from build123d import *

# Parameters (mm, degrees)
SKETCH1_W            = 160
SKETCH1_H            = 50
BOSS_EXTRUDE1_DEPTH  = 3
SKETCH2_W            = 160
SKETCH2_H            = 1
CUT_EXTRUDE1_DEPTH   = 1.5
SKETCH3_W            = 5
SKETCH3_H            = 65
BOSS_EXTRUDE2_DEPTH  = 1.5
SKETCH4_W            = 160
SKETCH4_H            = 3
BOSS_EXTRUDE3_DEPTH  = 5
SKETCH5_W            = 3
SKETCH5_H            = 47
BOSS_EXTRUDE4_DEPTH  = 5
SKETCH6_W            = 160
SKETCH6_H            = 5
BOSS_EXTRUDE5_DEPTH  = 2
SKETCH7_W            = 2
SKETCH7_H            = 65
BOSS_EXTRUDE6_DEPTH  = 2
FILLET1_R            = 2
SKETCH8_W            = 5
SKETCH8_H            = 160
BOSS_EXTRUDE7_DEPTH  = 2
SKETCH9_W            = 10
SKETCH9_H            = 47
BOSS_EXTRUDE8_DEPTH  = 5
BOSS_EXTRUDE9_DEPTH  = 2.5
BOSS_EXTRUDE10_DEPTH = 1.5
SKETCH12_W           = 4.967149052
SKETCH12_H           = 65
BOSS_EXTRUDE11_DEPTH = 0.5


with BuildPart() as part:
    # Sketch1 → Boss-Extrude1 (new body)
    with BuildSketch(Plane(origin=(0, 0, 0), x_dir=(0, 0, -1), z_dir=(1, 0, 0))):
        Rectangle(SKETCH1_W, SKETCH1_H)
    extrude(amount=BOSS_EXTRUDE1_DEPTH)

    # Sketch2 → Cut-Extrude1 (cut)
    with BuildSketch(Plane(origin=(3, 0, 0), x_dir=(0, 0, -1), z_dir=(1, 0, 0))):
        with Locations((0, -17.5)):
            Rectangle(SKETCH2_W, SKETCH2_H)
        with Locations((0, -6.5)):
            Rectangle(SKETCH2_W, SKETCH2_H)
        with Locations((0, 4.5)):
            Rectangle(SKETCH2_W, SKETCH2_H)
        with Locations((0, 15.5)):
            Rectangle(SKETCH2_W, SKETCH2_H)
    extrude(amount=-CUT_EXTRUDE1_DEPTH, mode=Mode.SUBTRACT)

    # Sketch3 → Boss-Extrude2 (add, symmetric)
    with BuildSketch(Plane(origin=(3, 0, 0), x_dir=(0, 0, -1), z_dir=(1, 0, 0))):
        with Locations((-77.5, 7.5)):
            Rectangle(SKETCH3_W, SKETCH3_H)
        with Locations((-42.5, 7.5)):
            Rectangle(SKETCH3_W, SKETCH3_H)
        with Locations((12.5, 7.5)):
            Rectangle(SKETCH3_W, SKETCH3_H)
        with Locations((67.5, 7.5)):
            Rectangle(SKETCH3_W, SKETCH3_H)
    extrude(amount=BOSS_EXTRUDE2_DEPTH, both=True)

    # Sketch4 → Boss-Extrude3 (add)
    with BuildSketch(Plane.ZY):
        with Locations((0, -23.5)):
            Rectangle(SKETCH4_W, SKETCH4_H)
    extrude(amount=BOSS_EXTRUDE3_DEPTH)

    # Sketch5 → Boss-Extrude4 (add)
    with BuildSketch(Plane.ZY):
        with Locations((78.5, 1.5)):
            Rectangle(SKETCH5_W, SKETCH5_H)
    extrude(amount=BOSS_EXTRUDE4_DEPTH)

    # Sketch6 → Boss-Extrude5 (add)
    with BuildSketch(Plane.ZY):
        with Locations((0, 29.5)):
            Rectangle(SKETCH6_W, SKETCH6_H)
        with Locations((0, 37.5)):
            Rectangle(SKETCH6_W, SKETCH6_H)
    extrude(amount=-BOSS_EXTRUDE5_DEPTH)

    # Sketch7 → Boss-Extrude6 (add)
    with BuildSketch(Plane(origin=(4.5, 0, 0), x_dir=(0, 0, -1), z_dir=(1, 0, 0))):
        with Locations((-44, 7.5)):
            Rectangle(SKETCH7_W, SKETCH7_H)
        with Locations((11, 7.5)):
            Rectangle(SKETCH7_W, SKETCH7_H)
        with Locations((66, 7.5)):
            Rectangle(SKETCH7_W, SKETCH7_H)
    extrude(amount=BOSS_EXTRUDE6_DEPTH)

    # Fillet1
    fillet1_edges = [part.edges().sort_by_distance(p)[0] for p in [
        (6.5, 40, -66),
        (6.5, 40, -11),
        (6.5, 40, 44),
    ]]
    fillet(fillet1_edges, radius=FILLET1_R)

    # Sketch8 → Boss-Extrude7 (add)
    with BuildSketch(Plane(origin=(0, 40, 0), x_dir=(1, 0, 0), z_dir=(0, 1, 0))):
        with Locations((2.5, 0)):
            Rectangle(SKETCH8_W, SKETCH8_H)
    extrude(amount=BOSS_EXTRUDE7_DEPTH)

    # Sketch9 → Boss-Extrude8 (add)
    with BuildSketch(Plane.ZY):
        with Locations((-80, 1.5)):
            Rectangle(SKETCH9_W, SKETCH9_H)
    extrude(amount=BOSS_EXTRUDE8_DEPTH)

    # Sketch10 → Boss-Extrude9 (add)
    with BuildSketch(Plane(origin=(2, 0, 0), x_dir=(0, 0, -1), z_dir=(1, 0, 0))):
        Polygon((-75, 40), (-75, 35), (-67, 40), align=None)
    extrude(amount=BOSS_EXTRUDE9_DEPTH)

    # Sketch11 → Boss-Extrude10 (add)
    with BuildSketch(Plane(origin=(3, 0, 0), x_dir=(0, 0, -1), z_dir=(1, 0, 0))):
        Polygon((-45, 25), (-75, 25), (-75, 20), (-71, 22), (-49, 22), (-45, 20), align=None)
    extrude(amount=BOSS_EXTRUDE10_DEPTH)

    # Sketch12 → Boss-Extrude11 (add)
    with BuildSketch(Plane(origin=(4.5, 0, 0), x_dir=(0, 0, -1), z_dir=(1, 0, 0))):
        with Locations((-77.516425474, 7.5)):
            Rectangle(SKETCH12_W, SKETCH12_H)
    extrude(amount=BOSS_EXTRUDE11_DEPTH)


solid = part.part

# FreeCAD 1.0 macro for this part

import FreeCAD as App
import Part
import Sketcher
Q = App.Units.Quantity


def edges_at(feature, points):
    """Names of the edges that pass closest to the given points."""
    edges = feature.Shape.Edges
    near = lambda p: min(range(len(edges)), key=lambda i: edges[i].distToShape(Part.Vertex(*p))[0])
    return sorted({f"Edge{near(p) + 1}" for p in points})


def add_polygon(sketch, points):
    """Adds a closed chain of lines whose ends are joined by coincident constraints."""
    first, n = sketch.GeometryCount, len(points)
    for a, b in zip(points, points[1:] + points[:1]):
        sketch.addGeometry(Part.LineSegment(App.Vector(*a, 0), App.Vector(*b, 0)), False)
    for i in range(n):
        sketch.addConstraint(Sketcher.Constraint("Coincident", first + i, 2, first + (i + 1) % n, 1))

doc = App.newDocument("Part")
body = doc.addObject("PartDesign::Body", "Body")

# Sketch on YZ plane
sketch1 = body.newObject("Sketcher::SketchObject", "Sketch")
sketch1.AttachmentSupport = (doc.getObject("YZ_Plane"), [""])
sketch1.MapMode = "FlatFace"
add_polygon(sketch1, [(25, 80), (-25, 80), (-25, -80), (25, -80)])  # lines 0-3
sketch1.addConstraint([
    Sketcher.Constraint("Horizontal", 0),
    Sketcher.Constraint("Vertical", 1),
    Sketcher.Constraint("Horizontal", 2),
    Sketcher.Constraint("Vertical", 3),
    Sketcher.Constraint("Symmetric", 0, 2, 2, 2, -1, 1),
    Sketcher.Constraint("DistanceX", 0, 2, 0, 1, Q("50 mm")),
    Sketcher.Constraint("DistanceY", 1, 2, 1, 1, Q("160 mm")),
])
pad1 = body.newObject("PartDesign::Pad", "Pad")
pad1.Profile = sketch1
pad1.Length = 3

# Sketch on YZ plane
sketch2 = body.newObject("Sketcher::SketchObject", "Sketch001")
sketch2.AttachmentSupport = (doc.getObject("YZ_Plane"), [""])
sketch2.MapMode = "FlatFace"
sketch2.AttachmentOffset = App.Placement(App.Vector(0, 0, 3), App.Rotation())
add_polygon(sketch2, [(-17, 80), (-18, 80), (-18, -80), (-17, -80)])  # lines 0-3
add_polygon(sketch2, [(-6, 80), (-7, 80), (-7, -80), (-6, -80)])  # lines 4-7
add_polygon(sketch2, [(5, 80), (4, 80), (4, -80), (5, -80)])  # lines 8-11
add_polygon(sketch2, [(16, 80), (15, 80), (15, -80), (16, -80)])  # lines 12-15
sketch2.addConstraint([
    Sketcher.Constraint("Horizontal", 0),
    Sketcher.Constraint("Vertical", 1),
    Sketcher.Constraint("Horizontal", 2),
    Sketcher.Constraint("Vertical", 3),
    Sketcher.Constraint("Horizontal", 4),
    Sketcher.Constraint("Vertical", 5),
    Sketcher.Constraint("Horizontal", 6),
    Sketcher.Constraint("Vertical", 7),
    Sketcher.Constraint("Horizontal", 8),
    Sketcher.Constraint("Vertical", 9),
    Sketcher.Constraint("Horizontal", 10),
    Sketcher.Constraint("Vertical", 11),
    Sketcher.Constraint("Horizontal", 12),
    Sketcher.Constraint("Vertical", 13),
    Sketcher.Constraint("Horizontal", 14),
    Sketcher.Constraint("Vertical", 15),
    Sketcher.Constraint("Horizontal", 3, 2, 4, 2),
    Sketcher.Constraint("Horizontal", 2, 2, 5, 2),
    Sketcher.Constraint("Horizontal", 7, 2, 8, 2),
    Sketcher.Constraint("Horizontal", 6, 2, 9, 2),
    Sketcher.Constraint("Horizontal", 11, 2, 12, 2),
    Sketcher.Constraint("Horizontal", 10, 2, 13, 2),
    Sketcher.Constraint("Equal", 2, 4),
    Sketcher.Constraint("Equal", 6, 8),
    Sketcher.Constraint("Equal", 10, 12),
    Sketcher.Constraint("DistanceX", 0, 2, 0, 1, Q("1 mm")),
    Sketcher.Constraint("DistanceY", 1, 2, 1, 1, Q("160 mm")),
    Sketcher.Constraint("DistanceX", 0, 2, -1, 1, Q("18 mm")),
    Sketcher.Constraint("DistanceY", -1, 1, 0, 2, Q("80 mm")),
    Sketcher.Constraint("DistanceX", 4, 2, -1, 1, Q("7 mm")),
    Sketcher.Constraint("DistanceX", -1, 1, 8, 2, Q("4 mm")),
    Sketcher.Constraint("DistanceX", -1, 1, 12, 2, Q("15 mm")),
])
pocket1 = body.newObject("PartDesign::Pocket", "Pocket")
pocket1.Profile = sketch2
pocket1.Length = 1.5

# Sketch on YZ plane
sketch3 = body.newObject("Sketcher::SketchObject", "Sketch002")
sketch3.AttachmentSupport = (doc.getObject("YZ_Plane"), [""])
sketch3.MapMode = "FlatFace"
sketch3.AttachmentOffset = App.Placement(App.Vector(0, 0, 3), App.Rotation())
add_polygon(sketch3, [(40, 80), (-25, 80), (-25, 75), (40, 75)])  # lines 0-3
add_polygon(sketch3, [(40, 45), (-25, 45), (-25, 40), (40, 40)])  # lines 4-7
add_polygon(sketch3, [(40, -10), (-25, -10), (-25, -15), (40, -15)])  # lines 8-11
add_polygon(sketch3, [(40, -65), (-25, -65), (-25, -70), (40, -70)])  # lines 12-15
sketch3.addConstraint([
    Sketcher.Constraint("Horizontal", 0),
    Sketcher.Constraint("Vertical", 1),
    Sketcher.Constraint("Horizontal", 2),
    Sketcher.Constraint("Vertical", 3),
    Sketcher.Constraint("Horizontal", 4),
    Sketcher.Constraint("Vertical", 5),
    Sketcher.Constraint("Horizontal", 6),
    Sketcher.Constraint("Vertical", 7),
    Sketcher.Constraint("Horizontal", 8),
    Sketcher.Constraint("Vertical", 9),
    Sketcher.Constraint("Horizontal", 10),
    Sketcher.Constraint("Vertical", 11),
    Sketcher.Constraint("Horizontal", 12),
    Sketcher.Constraint("Vertical", 13),
    Sketcher.Constraint("Horizontal", 14),
    Sketcher.Constraint("Vertical", 15),
    Sketcher.Constraint("Vertical", 1, 2, 4, 2),
    Sketcher.Constraint("Vertical", 3, 2, 6, 2),
    Sketcher.Constraint("Vertical", 5, 2, 8, 2),
    Sketcher.Constraint("Vertical", 7, 2, 10, 2),
    Sketcher.Constraint("Vertical", 9, 2, 12, 2),
    Sketcher.Constraint("Vertical", 11, 2, 14, 2),
    Sketcher.Constraint("Equal", 3, 5),
    Sketcher.Constraint("Equal", 7, 9),
    Sketcher.Constraint("Equal", 11, 13),
    Sketcher.Constraint("DistanceX", 0, 2, 0, 1, Q("65 mm")),
    Sketcher.Constraint("DistanceY", 1, 2, 1, 1, Q("5 mm")),
    Sketcher.Constraint("DistanceX", 0, 2, -1, 1, Q("25 mm")),
    Sketcher.Constraint("DistanceY", -1, 1, 0, 2, Q("80 mm")),
    Sketcher.Constraint("DistanceY", -1, 1, 4, 2, Q("45 mm")),
    Sketcher.Constraint("DistanceY", 8, 2, -1, 1, Q("10 mm")),
    Sketcher.Constraint("DistanceY", 12, 2, -1, 1, Q("65 mm")),
])
pad2 = body.newObject("PartDesign::Pad", "Pad001")
pad2.Profile = sketch3
pad2.Length = 3
pad2.Midplane = True

# Sketch on YZ plane
sketch4 = body.newObject("Sketcher::SketchObject", "Sketch003")
sketch4.AttachmentSupport = (doc.getObject("YZ_Plane"), [""])
sketch4.MapMode = "FlatFace"
add_polygon(sketch4, [(-22, -80), (-25, -80), (-25, 80), (-22, 80)])  # lines 0-3
sketch4.addConstraint([
    Sketcher.Constraint("Horizontal", 0),
    Sketcher.Constraint("Vertical", 1),
    Sketcher.Constraint("Horizontal", 2),
    Sketcher.Constraint("Vertical", 3),
    Sketcher.Constraint("DistanceX", 0, 2, 0, 1, Q("3 mm")),
    Sketcher.Constraint("DistanceY", 1, 1, 1, 2, Q("160 mm")),
    Sketcher.Constraint("DistanceX", 0, 2, -1, 1, Q("25 mm")),
    Sketcher.Constraint("DistanceY", 0, 2, -1, 1, Q("80 mm")),
])
pad3 = body.newObject("PartDesign::Pad", "Pad002")
pad3.Profile = sketch4
pad3.Length = 5
pad3.Reversed = True

# Sketch on YZ plane
sketch5 = body.newObject("Sketcher::SketchObject", "Sketch004")
sketch5.AttachmentSupport = (doc.getObject("YZ_Plane"), [""])
sketch5.MapMode = "FlatFace"
add_polygon(sketch5, [(25, 77), (-22, 77), (-22, 80), (25, 80)])  # lines 0-3
sketch5.addConstraint([
    Sketcher.Constraint("Horizontal", 0),
    Sketcher.Constraint("Vertical", 1),
    Sketcher.Constraint("Horizontal", 2),
    Sketcher.Constraint("Vertical", 3),
    Sketcher.Constraint("DistanceX", 0, 2, 0, 1, Q("47 mm")),
    Sketcher.Constraint("DistanceY", 1, 1, 1, 2, Q("3 mm")),
    Sketcher.Constraint("DistanceX", 0, 2, -1, 1, Q("22 mm")),
    Sketcher.Constraint("DistanceY", -1, 1, 0, 2, Q("77 mm")),
])
pad4 = body.newObject("PartDesign::Pad", "Pad003")
pad4.Profile = sketch5
pad4.Length = 5
pad4.Reversed = True

# Sketch on YZ plane
sketch6 = body.newObject("Sketcher::SketchObject", "Sketch005")
sketch6.AttachmentSupport = (doc.getObject("YZ_Plane"), [""])
sketch6.MapMode = "FlatFace"
add_polygon(sketch6, [(32, -80), (27, -80), (27, 80), (32, 80)])  # lines 0-3
add_polygon(sketch6, [(40, -80), (35, -80), (35, 80), (40, 80)])  # lines 4-7
sketch6.addConstraint([
    Sketcher.Constraint("Horizontal", 0),
    Sketcher.Constraint("Vertical", 1),
    Sketcher.Constraint("Horizontal", 2),
    Sketcher.Constraint("Vertical", 3),
    Sketcher.Constraint("Horizontal", 4),
    Sketcher.Constraint("Vertical", 5),
    Sketcher.Constraint("Horizontal", 6),
    Sketcher.Constraint("Vertical", 7),
    Sketcher.Constraint("Horizontal", 3, 2, 4, 2),
    Sketcher.Constraint("Horizontal", 2, 2, 5, 2),
    Sketcher.Constraint("Equal", 2, 4),
    Sketcher.Constraint("DistanceX", 0, 2, 0, 1, Q("5 mm")),
    Sketcher.Constraint("DistanceY", 1, 1, 1, 2, Q("160 mm")),
    Sketcher.Constraint("DistanceX", -1, 1, 0, 2, Q("27 mm")),
    Sketcher.Constraint("DistanceY", 0, 2, -1, 1, Q("80 mm")),
    Sketcher.Constraint("DistanceX", -1, 1, 4, 2, Q("35 mm")),
])
pad5 = body.newObject("PartDesign::Pad", "Pad004")
pad5.Profile = sketch6
pad5.Length = 2

# Sketch on YZ plane
sketch7 = body.newObject("Sketcher::SketchObject", "Sketch006")
sketch7.AttachmentSupport = (doc.getObject("YZ_Plane"), [""])
sketch7.MapMode = "FlatFace"
sketch7.AttachmentOffset = App.Placement(App.Vector(0, 0, 4.5), App.Rotation())
add_polygon(sketch7, [(40, 45), (-25, 45), (-25, 43), (40, 43)])  # lines 0-3
add_polygon(sketch7, [(40, -10), (-25, -10), (-25, -12), (40, -12)])  # lines 4-7
add_polygon(sketch7, [(40, -65), (-25, -65), (-25, -67), (40, -67)])  # lines 8-11
sketch7.addConstraint([
    Sketcher.Constraint("Horizontal", 0),
    Sketcher.Constraint("Vertical", 1),
    Sketcher.Constraint("Horizontal", 2),
    Sketcher.Constraint("Vertical", 3),
    Sketcher.Constraint("Horizontal", 4),
    Sketcher.Constraint("Vertical", 5),
    Sketcher.Constraint("Horizontal", 6),
    Sketcher.Constraint("Vertical", 7),
    Sketcher.Constraint("Horizontal", 8),
    Sketcher.Constraint("Vertical", 9),
    Sketcher.Constraint("Horizontal", 10),
    Sketcher.Constraint("Vertical", 11),
    Sketcher.Constraint("Vertical", 1, 2, 4, 2),
    Sketcher.Constraint("Vertical", 3, 2, 6, 2),
    Sketcher.Constraint("Vertical", 5, 2, 8, 2),
    Sketcher.Constraint("Vertical", 7, 2, 10, 2),
    Sketcher.Constraint("Equal", 3, 5),
    Sketcher.Constraint("Equal", 7, 9),
    Sketcher.Constraint("DistanceX", 0, 2, 0, 1, Q("65 mm")),
    Sketcher.Constraint("DistanceY", 1, 2, 1, 1, Q("2 mm")),
    Sketcher.Constraint("DistanceX", 0, 2, -1, 1, Q("25 mm")),
    Sketcher.Constraint("DistanceY", -1, 1, 0, 2, Q("45 mm")),
    Sketcher.Constraint("DistanceY", 4, 2, -1, 1, Q("10 mm")),
    Sketcher.Constraint("DistanceY", 8, 2, -1, 1, Q("65 mm")),
])
pad6 = body.newObject("PartDesign::Pad", "Pad005")
pad6.Profile = sketch7
pad6.Length = 2
doc.recompute()

fillet = body.newObject("PartDesign::Fillet", "Fillet")
fillet.Base = (pad6, edges_at(pad6, [(6.5, 40, -66), (6.5, 40, -11), (6.5, 40, 44)]))
fillet.Radius = 2

# Sketch on XZ plane
sketch8 = body.newObject("Sketcher::SketchObject", "Sketch007")
sketch8.AttachmentSupport = (doc.getObject("XZ_Plane"), [""])
sketch8.MapMode = "FlatFace"
sketch8.AttachmentOffset = App.Placement(App.Vector(0, 0, -40), App.Rotation())
add_polygon(sketch8, [(0, -80), (0, 80), (5, 80), (5, -80)])  # lines 0-3
sketch8.addConstraint([
    Sketcher.Constraint("Vertical", 0),
    Sketcher.Constraint("Horizontal", 1),
    Sketcher.Constraint("Vertical", 2),
    Sketcher.Constraint("Horizontal", 3),
    Sketcher.Constraint("Symmetric", 0, 2, 3, 2, -1, 1),
    Sketcher.Constraint("DistanceX", 1, 1, 1, 2, Q("5 mm")),
    Sketcher.Constraint("DistanceY", 0, 1, 0, 2, Q("160 mm")),
])
pad7 = body.newObject("PartDesign::Pad", "Pad006")
pad7.Profile = sketch8
pad7.Length = 2
pad7.Reversed = True

# Sketch on YZ plane
sketch9 = body.newObject("Sketcher::SketchObject", "Sketch008")
sketch9.AttachmentSupport = (doc.getObject("YZ_Plane"), [""])
sketch9.MapMode = "FlatFace"
add_polygon(sketch9, [(25, -85), (-22, -85), (-22, -75), (25, -75)])  # lines 0-3
sketch9.addConstraint([
    Sketcher.Constraint("Horizontal", 0),
    Sketcher.Constraint("Vertical", 1),
    Sketcher.Constraint("Horizontal", 2),
    Sketcher.Constraint("Vertical", 3),
    Sketcher.Constraint("DistanceX", 0, 2, 0, 1, Q("47 mm")),
    Sketcher.Constraint("DistanceY", 1, 1, 1, 2, Q("10 mm")),
    Sketcher.Constraint("DistanceX", 0, 2, -1, 1, Q("22 mm")),
    Sketcher.Constraint("DistanceY", 0, 2, -1, 1, Q("85 mm")),
])
pad8 = body.newObject("PartDesign::Pad", "Pad007")
pad8.Profile = sketch9
pad8.Length = 5
pad8.Reversed = True

# Sketch on YZ plane
sketch10 = body.newObject("Sketcher::SketchObject", "Sketch009")
sketch10.AttachmentSupport = (doc.getObject("YZ_Plane"), [""])
sketch10.MapMode = "FlatFace"
sketch10.AttachmentOffset = App.Placement(App.Vector(0, 0, 2), App.Rotation())
add_polygon(sketch10, [(40, 75), (35, 75), (40, 67)])  # lines 0-2
sketch10.addConstraint([
    Sketcher.Constraint("Horizontal", 0),
    Sketcher.Constraint("Vertical", 2),
    Sketcher.Constraint("DistanceX", 0, 2, 0, 1, Q("5 mm")),
    Sketcher.Constraint("DistanceY", 2, 1, 2, 2, Q("8 mm")),
    Sketcher.Constraint("DistanceX", -1, 1, 0, 2, Q("35 mm")),
    Sketcher.Constraint("DistanceY", -1, 1, 0, 2, Q("75 mm")),
])
pad9 = body.newObject("PartDesign::Pad", "Pad008")
pad9.Profile = sketch10
pad9.Length = 2.5

# Sketch on YZ plane
sketch11 = body.newObject("Sketcher::SketchObject", "Sketch010")
sketch11.AttachmentSupport = (doc.getObject("YZ_Plane"), [""])
sketch11.MapMode = "FlatFace"
sketch11.AttachmentOffset = App.Placement(App.Vector(0, 0, 3), App.Rotation())
add_polygon(sketch11, [(25, 45), (25, 75), (20, 75), (22, 71), (22, 49), (20, 45)])  # lines 0-5
sketch11.addConstraint([
    Sketcher.Constraint("Vertical", 0),
    Sketcher.Constraint("Horizontal", 1),
    Sketcher.Constraint("Vertical", 3),
    Sketcher.Constraint("Horizontal", 5),
    Sketcher.Constraint("Vertical", 1, 2, 4, 2),
    Sketcher.Constraint("Equal", 2, 4),
    Sketcher.Constraint("DistanceX", 1, 2, 1, 1, Q("5 mm")),
    Sketcher.Constraint("DistanceY", 0, 1, 0, 2, Q("30 mm")),
    Sketcher.Constraint("DistanceY", 3, 2, 3, 1, Q("22 mm")),
    Sketcher.Constraint("DistanceX", -1, 1, 0, 2, Q("25 mm")),
    Sketcher.Constraint("DistanceY", -1, 1, 0, 2, Q("75 mm")),
    Sketcher.Constraint("DistanceX", -1, 1, 2, 2, Q("22 mm")),
])
pad10 = body.newObject("PartDesign::Pad", "Pad009")
pad10.Profile = sketch11
pad10.Length = 1.5

# Sketch on YZ plane
sketch12 = body.newObject("Sketcher::SketchObject", "Sketch011")
sketch12.AttachmentSupport = (doc.getObject("YZ_Plane"), [""])
sketch12.MapMode = "FlatFace"
sketch12.AttachmentOffset = App.Placement(App.Vector(0, 0, 4.5), App.Rotation())
add_polygon(sketch12, [(40, 80), (-25, 80), (-25, 75), (40, 75)])  # lines 0-3
sketch12.addConstraint([
    Sketcher.Constraint("Horizontal", 0),
    Sketcher.Constraint("Vertical", 1),
    Sketcher.Constraint("Horizontal", 2),
    Sketcher.Constraint("Vertical", 3),
    Sketcher.Constraint("DistanceX", 0, 2, 0, 1, Q("65 mm")),
    Sketcher.Constraint("DistanceX", 0, 2, -1, 1, Q("25 mm")),
    Sketcher.Constraint("DistanceY", -1, 1, 0, 2, Q("80 mm")),
    Sketcher.Constraint("DistanceY", 1, 2, 1, 1, Q("4.967149 mm")),
])
pad11 = body.newObject("PartDesign::Pad", "Pad010")
pad11.Profile = sketch12
pad11.Length = 0.5

doc.recompute()
